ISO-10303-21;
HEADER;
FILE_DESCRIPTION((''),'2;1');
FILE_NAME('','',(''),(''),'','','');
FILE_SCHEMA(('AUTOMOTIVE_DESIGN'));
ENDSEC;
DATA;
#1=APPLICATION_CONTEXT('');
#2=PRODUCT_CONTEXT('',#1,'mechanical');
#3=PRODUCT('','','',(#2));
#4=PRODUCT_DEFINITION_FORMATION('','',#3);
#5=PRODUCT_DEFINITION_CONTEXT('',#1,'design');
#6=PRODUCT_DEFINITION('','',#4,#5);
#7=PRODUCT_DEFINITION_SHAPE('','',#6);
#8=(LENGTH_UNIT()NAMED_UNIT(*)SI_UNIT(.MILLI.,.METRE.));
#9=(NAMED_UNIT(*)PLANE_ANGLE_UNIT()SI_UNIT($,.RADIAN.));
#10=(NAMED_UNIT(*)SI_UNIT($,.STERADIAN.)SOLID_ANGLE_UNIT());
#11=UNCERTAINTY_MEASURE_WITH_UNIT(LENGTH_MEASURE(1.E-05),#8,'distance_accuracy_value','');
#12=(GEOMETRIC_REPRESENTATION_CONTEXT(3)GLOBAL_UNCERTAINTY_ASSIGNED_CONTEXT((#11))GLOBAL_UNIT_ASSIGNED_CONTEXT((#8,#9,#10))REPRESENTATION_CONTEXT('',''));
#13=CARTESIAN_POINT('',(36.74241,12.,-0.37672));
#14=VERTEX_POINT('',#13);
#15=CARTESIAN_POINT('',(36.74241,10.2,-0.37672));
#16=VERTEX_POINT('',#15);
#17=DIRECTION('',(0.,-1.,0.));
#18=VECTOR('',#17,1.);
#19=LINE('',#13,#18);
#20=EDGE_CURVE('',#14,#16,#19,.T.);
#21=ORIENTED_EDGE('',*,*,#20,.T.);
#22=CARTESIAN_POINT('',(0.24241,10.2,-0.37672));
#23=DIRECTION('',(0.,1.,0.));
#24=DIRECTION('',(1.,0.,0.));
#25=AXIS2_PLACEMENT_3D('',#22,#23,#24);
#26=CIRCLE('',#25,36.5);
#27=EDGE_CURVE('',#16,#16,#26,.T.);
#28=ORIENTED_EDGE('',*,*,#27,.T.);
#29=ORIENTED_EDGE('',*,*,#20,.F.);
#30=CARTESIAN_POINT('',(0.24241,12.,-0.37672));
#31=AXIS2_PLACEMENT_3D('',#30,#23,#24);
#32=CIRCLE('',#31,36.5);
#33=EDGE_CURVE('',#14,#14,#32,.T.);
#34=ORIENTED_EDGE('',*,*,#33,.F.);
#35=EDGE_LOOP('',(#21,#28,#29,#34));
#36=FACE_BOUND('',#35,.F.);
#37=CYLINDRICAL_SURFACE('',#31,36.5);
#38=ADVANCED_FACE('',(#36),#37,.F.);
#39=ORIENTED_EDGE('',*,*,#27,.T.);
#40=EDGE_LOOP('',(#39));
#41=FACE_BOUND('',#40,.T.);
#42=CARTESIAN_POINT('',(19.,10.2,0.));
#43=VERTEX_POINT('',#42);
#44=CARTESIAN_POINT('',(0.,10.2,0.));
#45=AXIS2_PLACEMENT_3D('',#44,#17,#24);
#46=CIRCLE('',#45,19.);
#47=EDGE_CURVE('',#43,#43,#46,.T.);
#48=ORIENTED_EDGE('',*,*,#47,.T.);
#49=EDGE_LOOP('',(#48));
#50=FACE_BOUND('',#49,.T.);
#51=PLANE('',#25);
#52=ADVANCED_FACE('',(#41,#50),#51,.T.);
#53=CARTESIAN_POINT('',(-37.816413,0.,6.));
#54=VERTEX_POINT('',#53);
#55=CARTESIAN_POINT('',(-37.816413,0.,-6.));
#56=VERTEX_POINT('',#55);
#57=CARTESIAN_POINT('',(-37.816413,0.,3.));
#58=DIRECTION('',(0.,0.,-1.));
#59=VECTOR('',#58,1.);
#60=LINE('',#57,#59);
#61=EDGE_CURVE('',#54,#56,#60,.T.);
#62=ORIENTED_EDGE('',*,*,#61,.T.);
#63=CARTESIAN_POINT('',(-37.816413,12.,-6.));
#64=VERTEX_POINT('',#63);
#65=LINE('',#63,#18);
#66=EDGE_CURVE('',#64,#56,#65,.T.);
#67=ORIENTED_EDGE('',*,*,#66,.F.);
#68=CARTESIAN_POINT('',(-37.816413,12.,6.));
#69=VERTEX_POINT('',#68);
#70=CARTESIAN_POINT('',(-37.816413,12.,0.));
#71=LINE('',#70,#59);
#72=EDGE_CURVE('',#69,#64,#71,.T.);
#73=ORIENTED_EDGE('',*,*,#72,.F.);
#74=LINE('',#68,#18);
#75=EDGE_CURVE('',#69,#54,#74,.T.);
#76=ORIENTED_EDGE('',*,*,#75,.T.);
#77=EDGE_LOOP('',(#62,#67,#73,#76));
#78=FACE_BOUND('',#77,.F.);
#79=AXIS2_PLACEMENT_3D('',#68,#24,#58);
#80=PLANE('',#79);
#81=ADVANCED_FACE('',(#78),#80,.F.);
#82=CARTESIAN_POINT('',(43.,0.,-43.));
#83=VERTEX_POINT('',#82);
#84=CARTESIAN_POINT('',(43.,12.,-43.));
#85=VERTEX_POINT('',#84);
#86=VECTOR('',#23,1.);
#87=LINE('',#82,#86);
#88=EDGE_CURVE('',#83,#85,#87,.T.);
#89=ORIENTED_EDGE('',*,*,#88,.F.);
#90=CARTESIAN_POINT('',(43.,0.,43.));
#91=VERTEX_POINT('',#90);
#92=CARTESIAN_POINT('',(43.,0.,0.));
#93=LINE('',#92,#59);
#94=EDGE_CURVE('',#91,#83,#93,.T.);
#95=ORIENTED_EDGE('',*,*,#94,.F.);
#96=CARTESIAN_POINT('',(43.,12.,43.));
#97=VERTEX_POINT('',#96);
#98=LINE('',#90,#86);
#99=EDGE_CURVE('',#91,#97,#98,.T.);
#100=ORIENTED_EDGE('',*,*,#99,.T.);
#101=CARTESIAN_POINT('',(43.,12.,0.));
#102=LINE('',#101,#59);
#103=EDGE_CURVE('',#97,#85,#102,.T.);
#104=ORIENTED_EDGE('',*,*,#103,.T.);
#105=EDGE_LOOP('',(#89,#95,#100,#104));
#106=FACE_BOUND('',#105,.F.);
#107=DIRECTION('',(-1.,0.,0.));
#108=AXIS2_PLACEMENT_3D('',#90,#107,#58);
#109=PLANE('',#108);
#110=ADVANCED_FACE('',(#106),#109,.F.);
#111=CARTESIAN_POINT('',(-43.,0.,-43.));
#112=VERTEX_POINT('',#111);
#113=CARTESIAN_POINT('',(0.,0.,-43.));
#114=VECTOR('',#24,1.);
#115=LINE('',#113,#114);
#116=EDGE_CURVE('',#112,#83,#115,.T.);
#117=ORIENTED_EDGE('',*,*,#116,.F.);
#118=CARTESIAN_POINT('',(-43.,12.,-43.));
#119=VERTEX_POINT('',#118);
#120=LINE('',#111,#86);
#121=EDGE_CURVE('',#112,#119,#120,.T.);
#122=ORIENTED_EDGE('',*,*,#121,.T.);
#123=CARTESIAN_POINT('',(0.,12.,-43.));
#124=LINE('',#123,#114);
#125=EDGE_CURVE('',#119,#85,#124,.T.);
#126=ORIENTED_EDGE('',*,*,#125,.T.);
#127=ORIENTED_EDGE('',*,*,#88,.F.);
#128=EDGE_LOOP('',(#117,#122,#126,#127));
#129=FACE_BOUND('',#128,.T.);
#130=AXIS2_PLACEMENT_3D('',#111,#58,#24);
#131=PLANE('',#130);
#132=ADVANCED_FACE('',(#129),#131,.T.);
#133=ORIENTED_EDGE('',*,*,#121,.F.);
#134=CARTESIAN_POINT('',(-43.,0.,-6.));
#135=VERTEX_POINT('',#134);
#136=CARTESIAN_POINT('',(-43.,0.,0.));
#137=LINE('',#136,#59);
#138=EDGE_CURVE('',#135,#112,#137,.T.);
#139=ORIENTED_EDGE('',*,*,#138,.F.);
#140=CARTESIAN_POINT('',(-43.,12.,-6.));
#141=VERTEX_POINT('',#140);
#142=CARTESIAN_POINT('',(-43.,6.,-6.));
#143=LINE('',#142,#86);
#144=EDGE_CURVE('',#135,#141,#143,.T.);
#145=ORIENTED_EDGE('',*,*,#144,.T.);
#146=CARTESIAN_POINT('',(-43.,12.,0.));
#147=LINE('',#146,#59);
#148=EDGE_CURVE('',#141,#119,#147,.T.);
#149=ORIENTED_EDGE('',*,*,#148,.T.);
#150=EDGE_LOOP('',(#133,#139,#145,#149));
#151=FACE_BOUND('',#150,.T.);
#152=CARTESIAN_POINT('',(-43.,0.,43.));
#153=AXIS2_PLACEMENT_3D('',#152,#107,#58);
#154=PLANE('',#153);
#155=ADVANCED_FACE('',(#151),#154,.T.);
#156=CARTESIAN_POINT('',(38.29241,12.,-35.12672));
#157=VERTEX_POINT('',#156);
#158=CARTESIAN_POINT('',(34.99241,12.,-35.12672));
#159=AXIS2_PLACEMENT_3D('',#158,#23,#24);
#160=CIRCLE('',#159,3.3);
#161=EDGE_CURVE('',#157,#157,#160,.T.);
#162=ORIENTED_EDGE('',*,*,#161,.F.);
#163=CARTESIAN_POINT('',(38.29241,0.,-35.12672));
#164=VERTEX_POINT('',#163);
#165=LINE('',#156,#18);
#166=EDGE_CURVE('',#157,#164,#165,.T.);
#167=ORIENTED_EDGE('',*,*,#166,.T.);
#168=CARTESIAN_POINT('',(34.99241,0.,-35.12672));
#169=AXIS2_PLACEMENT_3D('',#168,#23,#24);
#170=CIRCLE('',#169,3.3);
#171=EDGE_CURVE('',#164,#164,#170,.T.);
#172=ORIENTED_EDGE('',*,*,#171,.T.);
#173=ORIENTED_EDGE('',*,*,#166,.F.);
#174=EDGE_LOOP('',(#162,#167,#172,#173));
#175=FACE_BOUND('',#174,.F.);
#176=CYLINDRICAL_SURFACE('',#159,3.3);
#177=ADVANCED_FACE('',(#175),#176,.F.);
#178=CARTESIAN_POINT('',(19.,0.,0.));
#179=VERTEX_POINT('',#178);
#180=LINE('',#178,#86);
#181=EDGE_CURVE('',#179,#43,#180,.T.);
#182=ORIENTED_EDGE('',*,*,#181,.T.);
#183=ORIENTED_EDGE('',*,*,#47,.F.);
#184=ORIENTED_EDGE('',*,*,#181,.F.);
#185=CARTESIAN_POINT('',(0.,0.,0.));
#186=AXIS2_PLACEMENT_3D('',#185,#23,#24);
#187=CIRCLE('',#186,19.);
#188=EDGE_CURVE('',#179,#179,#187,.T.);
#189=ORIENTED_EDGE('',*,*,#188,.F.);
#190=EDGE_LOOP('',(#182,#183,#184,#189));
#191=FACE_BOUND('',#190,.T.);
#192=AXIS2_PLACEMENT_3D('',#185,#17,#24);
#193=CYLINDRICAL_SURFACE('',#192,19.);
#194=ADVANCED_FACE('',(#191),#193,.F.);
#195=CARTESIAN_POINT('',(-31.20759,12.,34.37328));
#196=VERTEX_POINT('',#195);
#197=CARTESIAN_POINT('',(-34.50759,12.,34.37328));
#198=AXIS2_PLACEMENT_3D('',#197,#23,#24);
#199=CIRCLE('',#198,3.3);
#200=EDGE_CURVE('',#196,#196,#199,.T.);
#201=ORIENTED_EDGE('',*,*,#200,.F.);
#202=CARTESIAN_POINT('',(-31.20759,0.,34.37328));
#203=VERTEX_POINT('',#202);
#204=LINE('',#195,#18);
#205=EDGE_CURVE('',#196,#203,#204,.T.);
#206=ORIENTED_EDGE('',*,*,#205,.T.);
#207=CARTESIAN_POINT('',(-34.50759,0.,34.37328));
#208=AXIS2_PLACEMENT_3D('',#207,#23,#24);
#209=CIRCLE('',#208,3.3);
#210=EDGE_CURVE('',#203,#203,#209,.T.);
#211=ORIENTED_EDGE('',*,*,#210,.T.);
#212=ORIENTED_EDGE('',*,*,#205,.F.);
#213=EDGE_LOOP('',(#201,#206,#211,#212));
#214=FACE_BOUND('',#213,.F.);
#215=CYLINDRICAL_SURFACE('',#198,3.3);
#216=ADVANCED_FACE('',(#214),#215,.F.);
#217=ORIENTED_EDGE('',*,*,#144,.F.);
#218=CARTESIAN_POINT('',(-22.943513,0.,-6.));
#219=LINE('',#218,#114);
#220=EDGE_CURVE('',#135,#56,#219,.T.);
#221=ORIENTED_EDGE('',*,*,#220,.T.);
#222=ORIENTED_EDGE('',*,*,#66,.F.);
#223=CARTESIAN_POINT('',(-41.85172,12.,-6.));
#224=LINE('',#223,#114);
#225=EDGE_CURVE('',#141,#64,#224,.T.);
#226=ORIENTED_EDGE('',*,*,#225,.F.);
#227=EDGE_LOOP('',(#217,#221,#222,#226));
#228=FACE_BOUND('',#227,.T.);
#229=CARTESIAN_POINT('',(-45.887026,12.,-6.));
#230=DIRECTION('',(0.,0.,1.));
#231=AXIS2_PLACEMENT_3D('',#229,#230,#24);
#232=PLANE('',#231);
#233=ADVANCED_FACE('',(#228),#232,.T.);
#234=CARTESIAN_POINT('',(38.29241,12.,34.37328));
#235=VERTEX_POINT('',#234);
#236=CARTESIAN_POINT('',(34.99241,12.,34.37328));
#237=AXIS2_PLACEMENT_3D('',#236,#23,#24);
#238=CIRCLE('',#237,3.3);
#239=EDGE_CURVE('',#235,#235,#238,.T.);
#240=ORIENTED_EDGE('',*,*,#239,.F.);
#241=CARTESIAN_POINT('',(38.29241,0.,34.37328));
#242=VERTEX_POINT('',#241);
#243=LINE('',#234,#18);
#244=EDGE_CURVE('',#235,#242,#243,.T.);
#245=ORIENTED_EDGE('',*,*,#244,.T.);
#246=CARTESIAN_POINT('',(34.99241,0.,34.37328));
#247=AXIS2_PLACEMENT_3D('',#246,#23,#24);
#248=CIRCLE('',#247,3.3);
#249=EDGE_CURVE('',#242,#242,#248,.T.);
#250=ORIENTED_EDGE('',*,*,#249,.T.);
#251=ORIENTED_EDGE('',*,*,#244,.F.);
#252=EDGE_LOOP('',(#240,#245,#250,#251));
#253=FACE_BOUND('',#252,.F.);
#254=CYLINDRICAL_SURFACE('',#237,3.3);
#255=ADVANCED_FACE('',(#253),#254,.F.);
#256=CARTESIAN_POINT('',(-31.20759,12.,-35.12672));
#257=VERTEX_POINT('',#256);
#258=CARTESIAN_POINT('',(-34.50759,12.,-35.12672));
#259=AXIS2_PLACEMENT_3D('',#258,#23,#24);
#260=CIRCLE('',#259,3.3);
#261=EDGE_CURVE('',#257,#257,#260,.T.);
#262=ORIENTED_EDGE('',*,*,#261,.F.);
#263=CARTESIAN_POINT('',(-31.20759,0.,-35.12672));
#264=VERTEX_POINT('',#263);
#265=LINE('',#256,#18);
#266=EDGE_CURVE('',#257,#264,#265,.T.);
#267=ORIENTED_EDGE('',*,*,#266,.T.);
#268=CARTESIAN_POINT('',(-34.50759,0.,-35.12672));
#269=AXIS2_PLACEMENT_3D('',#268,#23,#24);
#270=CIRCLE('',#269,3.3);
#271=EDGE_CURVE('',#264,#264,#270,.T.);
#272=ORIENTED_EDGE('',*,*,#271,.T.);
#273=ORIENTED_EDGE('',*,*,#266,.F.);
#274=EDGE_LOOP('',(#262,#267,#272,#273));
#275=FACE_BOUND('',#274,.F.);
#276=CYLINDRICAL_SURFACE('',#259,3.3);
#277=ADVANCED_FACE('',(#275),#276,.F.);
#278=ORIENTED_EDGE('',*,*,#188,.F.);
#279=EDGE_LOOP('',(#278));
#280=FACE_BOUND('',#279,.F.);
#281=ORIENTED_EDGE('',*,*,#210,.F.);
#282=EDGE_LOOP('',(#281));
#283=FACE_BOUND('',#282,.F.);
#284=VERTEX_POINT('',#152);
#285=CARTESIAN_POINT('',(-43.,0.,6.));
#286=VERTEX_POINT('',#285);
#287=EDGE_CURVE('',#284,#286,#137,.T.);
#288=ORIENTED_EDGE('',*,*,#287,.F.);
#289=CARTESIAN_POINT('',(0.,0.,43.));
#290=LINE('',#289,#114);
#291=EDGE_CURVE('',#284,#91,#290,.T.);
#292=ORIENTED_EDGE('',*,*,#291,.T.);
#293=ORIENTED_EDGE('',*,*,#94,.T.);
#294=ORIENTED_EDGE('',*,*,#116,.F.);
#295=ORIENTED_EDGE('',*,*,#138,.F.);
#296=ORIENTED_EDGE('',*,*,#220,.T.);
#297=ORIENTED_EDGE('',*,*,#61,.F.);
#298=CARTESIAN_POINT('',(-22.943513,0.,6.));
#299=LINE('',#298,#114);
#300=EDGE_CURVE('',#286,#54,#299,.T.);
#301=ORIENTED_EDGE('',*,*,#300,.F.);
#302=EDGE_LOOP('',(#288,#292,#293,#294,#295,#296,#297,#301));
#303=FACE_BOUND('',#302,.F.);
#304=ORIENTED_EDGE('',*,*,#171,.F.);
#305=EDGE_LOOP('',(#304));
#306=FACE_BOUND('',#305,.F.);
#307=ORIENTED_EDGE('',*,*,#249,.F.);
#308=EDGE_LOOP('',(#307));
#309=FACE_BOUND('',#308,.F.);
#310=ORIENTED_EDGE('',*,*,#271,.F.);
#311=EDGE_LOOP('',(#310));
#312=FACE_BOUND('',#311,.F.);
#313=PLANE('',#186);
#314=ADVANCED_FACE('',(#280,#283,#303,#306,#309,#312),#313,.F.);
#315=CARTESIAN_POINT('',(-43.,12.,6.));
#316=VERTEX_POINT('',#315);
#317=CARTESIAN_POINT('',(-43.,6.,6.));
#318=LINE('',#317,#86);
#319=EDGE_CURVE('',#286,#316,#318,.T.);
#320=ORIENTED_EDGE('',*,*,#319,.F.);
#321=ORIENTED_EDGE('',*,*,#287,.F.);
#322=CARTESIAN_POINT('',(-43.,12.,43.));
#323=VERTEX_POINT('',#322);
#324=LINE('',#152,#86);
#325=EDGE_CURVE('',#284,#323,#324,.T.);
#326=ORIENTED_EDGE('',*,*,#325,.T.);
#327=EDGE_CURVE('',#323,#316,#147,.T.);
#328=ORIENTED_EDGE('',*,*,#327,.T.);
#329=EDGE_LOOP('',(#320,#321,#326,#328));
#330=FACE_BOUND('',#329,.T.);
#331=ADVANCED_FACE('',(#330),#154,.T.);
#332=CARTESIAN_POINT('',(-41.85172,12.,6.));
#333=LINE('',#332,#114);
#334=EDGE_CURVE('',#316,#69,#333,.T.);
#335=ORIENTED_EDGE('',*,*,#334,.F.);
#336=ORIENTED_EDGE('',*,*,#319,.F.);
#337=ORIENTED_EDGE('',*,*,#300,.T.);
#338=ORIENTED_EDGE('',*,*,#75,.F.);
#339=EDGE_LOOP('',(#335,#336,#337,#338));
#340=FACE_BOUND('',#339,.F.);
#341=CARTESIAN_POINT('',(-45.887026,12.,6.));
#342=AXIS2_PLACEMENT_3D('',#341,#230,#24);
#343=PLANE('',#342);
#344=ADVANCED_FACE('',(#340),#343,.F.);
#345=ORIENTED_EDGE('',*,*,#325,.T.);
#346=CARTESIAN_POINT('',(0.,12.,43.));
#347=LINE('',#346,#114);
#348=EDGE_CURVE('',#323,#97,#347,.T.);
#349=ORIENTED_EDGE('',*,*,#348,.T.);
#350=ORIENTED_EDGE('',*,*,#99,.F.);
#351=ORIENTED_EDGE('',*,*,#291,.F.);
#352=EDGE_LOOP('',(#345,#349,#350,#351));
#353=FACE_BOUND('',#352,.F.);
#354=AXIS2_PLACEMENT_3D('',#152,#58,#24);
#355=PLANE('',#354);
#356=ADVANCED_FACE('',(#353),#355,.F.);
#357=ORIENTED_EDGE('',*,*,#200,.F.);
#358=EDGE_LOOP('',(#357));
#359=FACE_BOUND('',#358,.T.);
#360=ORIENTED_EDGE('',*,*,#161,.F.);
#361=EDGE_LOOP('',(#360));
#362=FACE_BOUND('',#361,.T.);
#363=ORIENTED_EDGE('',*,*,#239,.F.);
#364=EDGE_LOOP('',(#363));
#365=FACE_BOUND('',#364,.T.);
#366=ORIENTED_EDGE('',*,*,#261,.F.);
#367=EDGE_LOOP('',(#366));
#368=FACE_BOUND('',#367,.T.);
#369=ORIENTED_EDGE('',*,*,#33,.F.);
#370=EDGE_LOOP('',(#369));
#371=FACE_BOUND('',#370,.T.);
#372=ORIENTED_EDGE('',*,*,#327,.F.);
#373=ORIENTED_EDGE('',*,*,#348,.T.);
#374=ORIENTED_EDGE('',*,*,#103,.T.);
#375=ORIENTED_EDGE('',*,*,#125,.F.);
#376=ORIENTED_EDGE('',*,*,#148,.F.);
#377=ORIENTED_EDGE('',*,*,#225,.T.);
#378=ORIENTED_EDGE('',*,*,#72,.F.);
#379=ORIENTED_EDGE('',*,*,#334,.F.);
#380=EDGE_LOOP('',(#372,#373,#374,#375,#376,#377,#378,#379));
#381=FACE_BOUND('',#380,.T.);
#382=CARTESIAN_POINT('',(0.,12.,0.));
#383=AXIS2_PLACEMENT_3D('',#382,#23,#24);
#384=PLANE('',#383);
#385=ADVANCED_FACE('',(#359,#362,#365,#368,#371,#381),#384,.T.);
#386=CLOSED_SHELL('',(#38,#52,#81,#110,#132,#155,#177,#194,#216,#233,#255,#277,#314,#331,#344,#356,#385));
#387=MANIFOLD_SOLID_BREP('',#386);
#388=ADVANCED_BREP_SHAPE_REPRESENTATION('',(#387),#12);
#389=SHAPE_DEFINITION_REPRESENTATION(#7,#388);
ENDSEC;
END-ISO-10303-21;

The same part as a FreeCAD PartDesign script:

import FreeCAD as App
import Part
import Sketcher
Q = App.Units.Quantity

doc = App.newDocument("Part")
body = doc.addObject("PartDesign::Body", "Body")

sketch1 = body.newObject("Sketcher::SketchObject", "Sketch")
sketch1.AttachmentSupport = (doc.getObject("XZ_Plane"), [""])
sketch1.MapMode = "FlatFace"
sketch1.addGeometry(Part.LineSegment(App.Vector(-43, -43, 0), App.Vector(-43, 43, 0)), False)
sketch1.addGeometry(Part.LineSegment(App.Vector(-43, 43, 0), App.Vector(43, 43, 0)), False)
sketch1.addGeometry(Part.LineSegment(App.Vector(43, 43, 0), App.Vector(43, -43, 0)), False)
sketch1.addGeometry(Part.LineSegment(App.Vector(43, -43, 0), App.Vector(-43, -43, 0)), False)
sketch1.addGeometry(Part.Circle(App.Vector(0, 0, 0), App.Vector(0, 0, 1), 19), False)
sketch1.addConstraint(Sketcher.Constraint("Coincident", 0, 2, 1, 1))
sketch1.addConstraint(Sketcher.Constraint("Coincident", 1, 2, 2, 1))
sketch1.addConstraint(Sketcher.Constraint("Coincident", 2, 2, 3, 1))
sketch1.addConstraint(Sketcher.Constraint("Coincident", 3, 2, 0, 1))
sketch1.addConstraint(Sketcher.Constraint("Vertical", 0))
sketch1.addConstraint(Sketcher.Constraint("Horizontal", 1))
sketch1.addConstraint(Sketcher.Constraint("Vertical", 2))
sketch1.addConstraint(Sketcher.Constraint("Horizontal", 3))
sketch1.addConstraint(Sketcher.Constraint("Coincident", 4, 3, -1, 1))
sketch1.addConstraint(Sketcher.Constraint("Symmetric", 0, 2, 2, 2, -1, 1))
sketch1.addConstraint(Sketcher.Constraint("Equal", 3, 0))
sketch1.addConstraint(Sketcher.Constraint("Diameter", 4, Q("38 mm")))
sketch1.addConstraint(Sketcher.Constraint("DistanceX", 1, 1, 1, 2, Q("86 mm")))
pad1 = body.newObject("PartDesign::Pad", "Pad")
pad1.Profile = sketch1
pad1.Length = 12
pad1.Reversed = True

sketch2 = body.newObject("Sketcher::SketchObject", "Sketch001")
sketch2.AttachmentSupport = (doc.getObject("XZ_Plane"), [""])
sketch2.MapMode = "FlatFace"
sketch2.AttachmentOffset = App.Placement(App.Vector(0, 0, -12), App.Rotation())
sketch2.addGeometry(Part.Circle(App.Vector(-34.50759, 34.37328, 0), App.Vector(0, 0, 1), 3.3), False)
sketch2.addConstraint(Sketcher.Constraint("Diameter", 0, Q("6.6 mm")))
sketch2.addConstraint(Sketcher.Constraint("DistanceX", 0, 3, -1, 1, Q("34.50759 mm")))
sketch2.addConstraint(Sketcher.Constraint("DistanceY", -1, 1, 0, 3, Q("34.37328 mm")))
pocket1 = body.newObject("PartDesign::Pocket", "Pocket")
pocket1.Profile = sketch2
pocket1.Type = "UpToFirst"
pocket1.Reversed = True

sketch3 = body.newObject("Sketcher::SketchObject", "Sketch002")
sketch3.AttachmentSupport = (doc.getObject("XZ_Plane"), [""])
sketch3.MapMode = "FlatFace"
sketch3.AttachmentOffset = App.Placement(App.Vector(0, 0, -12), App.Rotation())
sketch3.addGeometry(Part.Circle(App.Vector(-34.50759, -35.12672, 0), App.Vector(0, 0, 1), 3.3), False)
sketch3.addConstraint(Sketcher.Constraint("Diameter", 0, Q("6.6 mm")))
sketch3.addConstraint(Sketcher.Constraint("DistanceX", 0, 3, -1, 1, Q("34.50759 mm")))
sketch3.addConstraint(Sketcher.Constraint("DistanceY", 0, 3, -1, 1, Q("35.12672 mm")))
pocket2 = body.newObject("PartDesign::Pocket", "Pocket001")
pocket2.Profile = sketch3
pocket2.Type = "UpToFirst"
pocket2.Reversed = True

sketch4 = body.newObject("Sketcher::SketchObject", "Sketch003")
sketch4.AttachmentSupport = (doc.getObject("XZ_Plane"), [""])
sketch4.MapMode = "FlatFace"
sketch4.AttachmentOffset = App.Placement(App.Vector(0, 0, -12), App.Rotation())
sketch4.addGeometry(Part.Circle(App.Vector(34.99241, 34.37328, 0), App.Vector(0, 0, 1), 3.3), False)
sketch4.addConstraint(Sketcher.Constraint("Diameter", 0, Q("6.6 mm")))
sketch4.addConstraint(Sketcher.Constraint("DistanceX", -1, 1, 0, 3, Q("34.99241 mm")))
sketch4.addConstraint(Sketcher.Constraint("DistanceY", -1, 1, 0, 3, Q("34.37328 mm")))
pocket3 = body.newObject("PartDesign::Pocket", "Pocket002")
pocket3.Profile = sketch4
pocket3.Type = "UpToFirst"
pocket3.Reversed = True

sketch5 = body.newObject("Sketcher::SketchObject", "Sketch004")
sketch5.AttachmentSupport = (doc.getObject("XZ_Plane"), [""])
sketch5.MapMode = "FlatFace"
sketch5.AttachmentOffset = App.Placement(App.Vector(0, 0, -12), App.Rotation())
sketch5.addGeometry(Part.Circle(App.Vector(34.99241, -35.12672, 0), App.Vector(0, 0, 1), 3.3), False)
sketch5.addConstraint(Sketcher.Constraint("Diameter", 0, Q("6.6 mm")))
sketch5.addConstraint(Sketcher.Constraint("DistanceX", -1, 1, 0, 3, Q("34.99241 mm")))
sketch5.addConstraint(Sketcher.Constraint("DistanceY", 0, 3, -1, 1, Q("35.12672 mm")))
pocket4 = body.newObject("PartDesign::Pocket", "Pocket003")
pocket4.Profile = sketch5
pocket4.Type = "UpToFirst"
pocket4.Reversed = True

sketch6 = body.newObject("Sketcher::SketchObject", "Sketch005")
sketch6.AttachmentSupport = (doc.getObject("XZ_Plane"), [""])
sketch6.MapMode = "FlatFace"
sketch6.AttachmentOffset = App.Placement(App.Vector(0, 0, -12), App.Rotation())
sketch6.addGeometry(Part.Circle(App.Vector(0.24241, -0.37672, 0), App.Vector(0, 0, 1), 36.5), False)
sketch6.addConstraint(Sketcher.Constraint("Diameter", 0, Q("73 mm")))
sketch6.addConstraint(Sketcher.Constraint("DistanceX", -1, 1, 0, 3, Q("0.24241 mm")))
sketch6.addConstraint(Sketcher.Constraint("DistanceY", 0, 3, -1, 1, Q("0.37672 mm")))
pocket5 = body.newObject("PartDesign::Pocket", "Pocket004")
pocket5.Profile = sketch6
pocket5.Length = 1.8
pocket5.Reversed = True

sketch7 = body.newObject("Sketcher::SketchObject", "Sketch006")
sketch7.AttachmentSupport = (doc.getObject("XZ_Plane"), [""])
sketch7.MapMode = "FlatFace"
sketch7.AttachmentOffset = App.Placement(App.Vector(0, 0, -12), App.Rotation())
sketch7.addGeometry(Part.LineSegment(App.Vector(-45.887026, -6, 0), App.Vector(-45.887026, 6, 0)), False)
sketch7.addGeometry(Part.LineSegment(App.Vector(-45.887026, 6, 0), App.Vector(-37.816413, 6, 0)), False)
sketch7.addGeometry(Part.LineSegment(App.Vector(-37.816413, 6, 0), App.Vector(-37.816413, -6, 0)), False)
sketch7.addGeometry(Part.LineSegment(App.Vector(-37.816413, -6, 0), App.Vector(-45.887026, -6, 0)), False)
sketch7.addConstraint(Sketcher.Constraint("Coincident", 0, 2, 1, 1))
sketch7.addConstraint(Sketcher.Constraint("Coincident", 1, 2, 2, 1))
sketch7.addConstraint(Sketcher.Constraint("Coincident", 2, 2, 3, 1))
sketch7.addConstraint(Sketcher.Constraint("Coincident", 3, 2, 0, 1))
sketch7.addConstraint(Sketcher.Constraint("Vertical", 0))
sketch7.addConstraint(Sketcher.Constraint("Horizontal", 1))
sketch7.addConstraint(Sketcher.Constraint("Vertical", 2))
sketch7.addConstraint(Sketcher.Constraint("Horizontal", 3))
sketch7.addConstraint(Sketcher.Constraint("DistanceY", 0, 1, 0, 2, Q("12 mm")))
sketch7.addConstraint(Sketcher.Constraint("DistanceY", -1, 1, 0, 2, Q("6 mm")))
sketch7.addConstraint(Sketcher.Constraint("DistanceX", 1, 1, 1, 2, Q("8.070613 mm")))
sketch7.addConstraint(Sketcher.Constraint("DistanceX", 0, 2, -1, 1, Q("45.887026 mm")))
pocket6 = body.newObject("PartDesign::Pocket", "Pocket005")
pocket6.Profile = sketch7
pocket6.Type = "ThroughAll"
pocket6.Reversed = True

doc.recompute()
